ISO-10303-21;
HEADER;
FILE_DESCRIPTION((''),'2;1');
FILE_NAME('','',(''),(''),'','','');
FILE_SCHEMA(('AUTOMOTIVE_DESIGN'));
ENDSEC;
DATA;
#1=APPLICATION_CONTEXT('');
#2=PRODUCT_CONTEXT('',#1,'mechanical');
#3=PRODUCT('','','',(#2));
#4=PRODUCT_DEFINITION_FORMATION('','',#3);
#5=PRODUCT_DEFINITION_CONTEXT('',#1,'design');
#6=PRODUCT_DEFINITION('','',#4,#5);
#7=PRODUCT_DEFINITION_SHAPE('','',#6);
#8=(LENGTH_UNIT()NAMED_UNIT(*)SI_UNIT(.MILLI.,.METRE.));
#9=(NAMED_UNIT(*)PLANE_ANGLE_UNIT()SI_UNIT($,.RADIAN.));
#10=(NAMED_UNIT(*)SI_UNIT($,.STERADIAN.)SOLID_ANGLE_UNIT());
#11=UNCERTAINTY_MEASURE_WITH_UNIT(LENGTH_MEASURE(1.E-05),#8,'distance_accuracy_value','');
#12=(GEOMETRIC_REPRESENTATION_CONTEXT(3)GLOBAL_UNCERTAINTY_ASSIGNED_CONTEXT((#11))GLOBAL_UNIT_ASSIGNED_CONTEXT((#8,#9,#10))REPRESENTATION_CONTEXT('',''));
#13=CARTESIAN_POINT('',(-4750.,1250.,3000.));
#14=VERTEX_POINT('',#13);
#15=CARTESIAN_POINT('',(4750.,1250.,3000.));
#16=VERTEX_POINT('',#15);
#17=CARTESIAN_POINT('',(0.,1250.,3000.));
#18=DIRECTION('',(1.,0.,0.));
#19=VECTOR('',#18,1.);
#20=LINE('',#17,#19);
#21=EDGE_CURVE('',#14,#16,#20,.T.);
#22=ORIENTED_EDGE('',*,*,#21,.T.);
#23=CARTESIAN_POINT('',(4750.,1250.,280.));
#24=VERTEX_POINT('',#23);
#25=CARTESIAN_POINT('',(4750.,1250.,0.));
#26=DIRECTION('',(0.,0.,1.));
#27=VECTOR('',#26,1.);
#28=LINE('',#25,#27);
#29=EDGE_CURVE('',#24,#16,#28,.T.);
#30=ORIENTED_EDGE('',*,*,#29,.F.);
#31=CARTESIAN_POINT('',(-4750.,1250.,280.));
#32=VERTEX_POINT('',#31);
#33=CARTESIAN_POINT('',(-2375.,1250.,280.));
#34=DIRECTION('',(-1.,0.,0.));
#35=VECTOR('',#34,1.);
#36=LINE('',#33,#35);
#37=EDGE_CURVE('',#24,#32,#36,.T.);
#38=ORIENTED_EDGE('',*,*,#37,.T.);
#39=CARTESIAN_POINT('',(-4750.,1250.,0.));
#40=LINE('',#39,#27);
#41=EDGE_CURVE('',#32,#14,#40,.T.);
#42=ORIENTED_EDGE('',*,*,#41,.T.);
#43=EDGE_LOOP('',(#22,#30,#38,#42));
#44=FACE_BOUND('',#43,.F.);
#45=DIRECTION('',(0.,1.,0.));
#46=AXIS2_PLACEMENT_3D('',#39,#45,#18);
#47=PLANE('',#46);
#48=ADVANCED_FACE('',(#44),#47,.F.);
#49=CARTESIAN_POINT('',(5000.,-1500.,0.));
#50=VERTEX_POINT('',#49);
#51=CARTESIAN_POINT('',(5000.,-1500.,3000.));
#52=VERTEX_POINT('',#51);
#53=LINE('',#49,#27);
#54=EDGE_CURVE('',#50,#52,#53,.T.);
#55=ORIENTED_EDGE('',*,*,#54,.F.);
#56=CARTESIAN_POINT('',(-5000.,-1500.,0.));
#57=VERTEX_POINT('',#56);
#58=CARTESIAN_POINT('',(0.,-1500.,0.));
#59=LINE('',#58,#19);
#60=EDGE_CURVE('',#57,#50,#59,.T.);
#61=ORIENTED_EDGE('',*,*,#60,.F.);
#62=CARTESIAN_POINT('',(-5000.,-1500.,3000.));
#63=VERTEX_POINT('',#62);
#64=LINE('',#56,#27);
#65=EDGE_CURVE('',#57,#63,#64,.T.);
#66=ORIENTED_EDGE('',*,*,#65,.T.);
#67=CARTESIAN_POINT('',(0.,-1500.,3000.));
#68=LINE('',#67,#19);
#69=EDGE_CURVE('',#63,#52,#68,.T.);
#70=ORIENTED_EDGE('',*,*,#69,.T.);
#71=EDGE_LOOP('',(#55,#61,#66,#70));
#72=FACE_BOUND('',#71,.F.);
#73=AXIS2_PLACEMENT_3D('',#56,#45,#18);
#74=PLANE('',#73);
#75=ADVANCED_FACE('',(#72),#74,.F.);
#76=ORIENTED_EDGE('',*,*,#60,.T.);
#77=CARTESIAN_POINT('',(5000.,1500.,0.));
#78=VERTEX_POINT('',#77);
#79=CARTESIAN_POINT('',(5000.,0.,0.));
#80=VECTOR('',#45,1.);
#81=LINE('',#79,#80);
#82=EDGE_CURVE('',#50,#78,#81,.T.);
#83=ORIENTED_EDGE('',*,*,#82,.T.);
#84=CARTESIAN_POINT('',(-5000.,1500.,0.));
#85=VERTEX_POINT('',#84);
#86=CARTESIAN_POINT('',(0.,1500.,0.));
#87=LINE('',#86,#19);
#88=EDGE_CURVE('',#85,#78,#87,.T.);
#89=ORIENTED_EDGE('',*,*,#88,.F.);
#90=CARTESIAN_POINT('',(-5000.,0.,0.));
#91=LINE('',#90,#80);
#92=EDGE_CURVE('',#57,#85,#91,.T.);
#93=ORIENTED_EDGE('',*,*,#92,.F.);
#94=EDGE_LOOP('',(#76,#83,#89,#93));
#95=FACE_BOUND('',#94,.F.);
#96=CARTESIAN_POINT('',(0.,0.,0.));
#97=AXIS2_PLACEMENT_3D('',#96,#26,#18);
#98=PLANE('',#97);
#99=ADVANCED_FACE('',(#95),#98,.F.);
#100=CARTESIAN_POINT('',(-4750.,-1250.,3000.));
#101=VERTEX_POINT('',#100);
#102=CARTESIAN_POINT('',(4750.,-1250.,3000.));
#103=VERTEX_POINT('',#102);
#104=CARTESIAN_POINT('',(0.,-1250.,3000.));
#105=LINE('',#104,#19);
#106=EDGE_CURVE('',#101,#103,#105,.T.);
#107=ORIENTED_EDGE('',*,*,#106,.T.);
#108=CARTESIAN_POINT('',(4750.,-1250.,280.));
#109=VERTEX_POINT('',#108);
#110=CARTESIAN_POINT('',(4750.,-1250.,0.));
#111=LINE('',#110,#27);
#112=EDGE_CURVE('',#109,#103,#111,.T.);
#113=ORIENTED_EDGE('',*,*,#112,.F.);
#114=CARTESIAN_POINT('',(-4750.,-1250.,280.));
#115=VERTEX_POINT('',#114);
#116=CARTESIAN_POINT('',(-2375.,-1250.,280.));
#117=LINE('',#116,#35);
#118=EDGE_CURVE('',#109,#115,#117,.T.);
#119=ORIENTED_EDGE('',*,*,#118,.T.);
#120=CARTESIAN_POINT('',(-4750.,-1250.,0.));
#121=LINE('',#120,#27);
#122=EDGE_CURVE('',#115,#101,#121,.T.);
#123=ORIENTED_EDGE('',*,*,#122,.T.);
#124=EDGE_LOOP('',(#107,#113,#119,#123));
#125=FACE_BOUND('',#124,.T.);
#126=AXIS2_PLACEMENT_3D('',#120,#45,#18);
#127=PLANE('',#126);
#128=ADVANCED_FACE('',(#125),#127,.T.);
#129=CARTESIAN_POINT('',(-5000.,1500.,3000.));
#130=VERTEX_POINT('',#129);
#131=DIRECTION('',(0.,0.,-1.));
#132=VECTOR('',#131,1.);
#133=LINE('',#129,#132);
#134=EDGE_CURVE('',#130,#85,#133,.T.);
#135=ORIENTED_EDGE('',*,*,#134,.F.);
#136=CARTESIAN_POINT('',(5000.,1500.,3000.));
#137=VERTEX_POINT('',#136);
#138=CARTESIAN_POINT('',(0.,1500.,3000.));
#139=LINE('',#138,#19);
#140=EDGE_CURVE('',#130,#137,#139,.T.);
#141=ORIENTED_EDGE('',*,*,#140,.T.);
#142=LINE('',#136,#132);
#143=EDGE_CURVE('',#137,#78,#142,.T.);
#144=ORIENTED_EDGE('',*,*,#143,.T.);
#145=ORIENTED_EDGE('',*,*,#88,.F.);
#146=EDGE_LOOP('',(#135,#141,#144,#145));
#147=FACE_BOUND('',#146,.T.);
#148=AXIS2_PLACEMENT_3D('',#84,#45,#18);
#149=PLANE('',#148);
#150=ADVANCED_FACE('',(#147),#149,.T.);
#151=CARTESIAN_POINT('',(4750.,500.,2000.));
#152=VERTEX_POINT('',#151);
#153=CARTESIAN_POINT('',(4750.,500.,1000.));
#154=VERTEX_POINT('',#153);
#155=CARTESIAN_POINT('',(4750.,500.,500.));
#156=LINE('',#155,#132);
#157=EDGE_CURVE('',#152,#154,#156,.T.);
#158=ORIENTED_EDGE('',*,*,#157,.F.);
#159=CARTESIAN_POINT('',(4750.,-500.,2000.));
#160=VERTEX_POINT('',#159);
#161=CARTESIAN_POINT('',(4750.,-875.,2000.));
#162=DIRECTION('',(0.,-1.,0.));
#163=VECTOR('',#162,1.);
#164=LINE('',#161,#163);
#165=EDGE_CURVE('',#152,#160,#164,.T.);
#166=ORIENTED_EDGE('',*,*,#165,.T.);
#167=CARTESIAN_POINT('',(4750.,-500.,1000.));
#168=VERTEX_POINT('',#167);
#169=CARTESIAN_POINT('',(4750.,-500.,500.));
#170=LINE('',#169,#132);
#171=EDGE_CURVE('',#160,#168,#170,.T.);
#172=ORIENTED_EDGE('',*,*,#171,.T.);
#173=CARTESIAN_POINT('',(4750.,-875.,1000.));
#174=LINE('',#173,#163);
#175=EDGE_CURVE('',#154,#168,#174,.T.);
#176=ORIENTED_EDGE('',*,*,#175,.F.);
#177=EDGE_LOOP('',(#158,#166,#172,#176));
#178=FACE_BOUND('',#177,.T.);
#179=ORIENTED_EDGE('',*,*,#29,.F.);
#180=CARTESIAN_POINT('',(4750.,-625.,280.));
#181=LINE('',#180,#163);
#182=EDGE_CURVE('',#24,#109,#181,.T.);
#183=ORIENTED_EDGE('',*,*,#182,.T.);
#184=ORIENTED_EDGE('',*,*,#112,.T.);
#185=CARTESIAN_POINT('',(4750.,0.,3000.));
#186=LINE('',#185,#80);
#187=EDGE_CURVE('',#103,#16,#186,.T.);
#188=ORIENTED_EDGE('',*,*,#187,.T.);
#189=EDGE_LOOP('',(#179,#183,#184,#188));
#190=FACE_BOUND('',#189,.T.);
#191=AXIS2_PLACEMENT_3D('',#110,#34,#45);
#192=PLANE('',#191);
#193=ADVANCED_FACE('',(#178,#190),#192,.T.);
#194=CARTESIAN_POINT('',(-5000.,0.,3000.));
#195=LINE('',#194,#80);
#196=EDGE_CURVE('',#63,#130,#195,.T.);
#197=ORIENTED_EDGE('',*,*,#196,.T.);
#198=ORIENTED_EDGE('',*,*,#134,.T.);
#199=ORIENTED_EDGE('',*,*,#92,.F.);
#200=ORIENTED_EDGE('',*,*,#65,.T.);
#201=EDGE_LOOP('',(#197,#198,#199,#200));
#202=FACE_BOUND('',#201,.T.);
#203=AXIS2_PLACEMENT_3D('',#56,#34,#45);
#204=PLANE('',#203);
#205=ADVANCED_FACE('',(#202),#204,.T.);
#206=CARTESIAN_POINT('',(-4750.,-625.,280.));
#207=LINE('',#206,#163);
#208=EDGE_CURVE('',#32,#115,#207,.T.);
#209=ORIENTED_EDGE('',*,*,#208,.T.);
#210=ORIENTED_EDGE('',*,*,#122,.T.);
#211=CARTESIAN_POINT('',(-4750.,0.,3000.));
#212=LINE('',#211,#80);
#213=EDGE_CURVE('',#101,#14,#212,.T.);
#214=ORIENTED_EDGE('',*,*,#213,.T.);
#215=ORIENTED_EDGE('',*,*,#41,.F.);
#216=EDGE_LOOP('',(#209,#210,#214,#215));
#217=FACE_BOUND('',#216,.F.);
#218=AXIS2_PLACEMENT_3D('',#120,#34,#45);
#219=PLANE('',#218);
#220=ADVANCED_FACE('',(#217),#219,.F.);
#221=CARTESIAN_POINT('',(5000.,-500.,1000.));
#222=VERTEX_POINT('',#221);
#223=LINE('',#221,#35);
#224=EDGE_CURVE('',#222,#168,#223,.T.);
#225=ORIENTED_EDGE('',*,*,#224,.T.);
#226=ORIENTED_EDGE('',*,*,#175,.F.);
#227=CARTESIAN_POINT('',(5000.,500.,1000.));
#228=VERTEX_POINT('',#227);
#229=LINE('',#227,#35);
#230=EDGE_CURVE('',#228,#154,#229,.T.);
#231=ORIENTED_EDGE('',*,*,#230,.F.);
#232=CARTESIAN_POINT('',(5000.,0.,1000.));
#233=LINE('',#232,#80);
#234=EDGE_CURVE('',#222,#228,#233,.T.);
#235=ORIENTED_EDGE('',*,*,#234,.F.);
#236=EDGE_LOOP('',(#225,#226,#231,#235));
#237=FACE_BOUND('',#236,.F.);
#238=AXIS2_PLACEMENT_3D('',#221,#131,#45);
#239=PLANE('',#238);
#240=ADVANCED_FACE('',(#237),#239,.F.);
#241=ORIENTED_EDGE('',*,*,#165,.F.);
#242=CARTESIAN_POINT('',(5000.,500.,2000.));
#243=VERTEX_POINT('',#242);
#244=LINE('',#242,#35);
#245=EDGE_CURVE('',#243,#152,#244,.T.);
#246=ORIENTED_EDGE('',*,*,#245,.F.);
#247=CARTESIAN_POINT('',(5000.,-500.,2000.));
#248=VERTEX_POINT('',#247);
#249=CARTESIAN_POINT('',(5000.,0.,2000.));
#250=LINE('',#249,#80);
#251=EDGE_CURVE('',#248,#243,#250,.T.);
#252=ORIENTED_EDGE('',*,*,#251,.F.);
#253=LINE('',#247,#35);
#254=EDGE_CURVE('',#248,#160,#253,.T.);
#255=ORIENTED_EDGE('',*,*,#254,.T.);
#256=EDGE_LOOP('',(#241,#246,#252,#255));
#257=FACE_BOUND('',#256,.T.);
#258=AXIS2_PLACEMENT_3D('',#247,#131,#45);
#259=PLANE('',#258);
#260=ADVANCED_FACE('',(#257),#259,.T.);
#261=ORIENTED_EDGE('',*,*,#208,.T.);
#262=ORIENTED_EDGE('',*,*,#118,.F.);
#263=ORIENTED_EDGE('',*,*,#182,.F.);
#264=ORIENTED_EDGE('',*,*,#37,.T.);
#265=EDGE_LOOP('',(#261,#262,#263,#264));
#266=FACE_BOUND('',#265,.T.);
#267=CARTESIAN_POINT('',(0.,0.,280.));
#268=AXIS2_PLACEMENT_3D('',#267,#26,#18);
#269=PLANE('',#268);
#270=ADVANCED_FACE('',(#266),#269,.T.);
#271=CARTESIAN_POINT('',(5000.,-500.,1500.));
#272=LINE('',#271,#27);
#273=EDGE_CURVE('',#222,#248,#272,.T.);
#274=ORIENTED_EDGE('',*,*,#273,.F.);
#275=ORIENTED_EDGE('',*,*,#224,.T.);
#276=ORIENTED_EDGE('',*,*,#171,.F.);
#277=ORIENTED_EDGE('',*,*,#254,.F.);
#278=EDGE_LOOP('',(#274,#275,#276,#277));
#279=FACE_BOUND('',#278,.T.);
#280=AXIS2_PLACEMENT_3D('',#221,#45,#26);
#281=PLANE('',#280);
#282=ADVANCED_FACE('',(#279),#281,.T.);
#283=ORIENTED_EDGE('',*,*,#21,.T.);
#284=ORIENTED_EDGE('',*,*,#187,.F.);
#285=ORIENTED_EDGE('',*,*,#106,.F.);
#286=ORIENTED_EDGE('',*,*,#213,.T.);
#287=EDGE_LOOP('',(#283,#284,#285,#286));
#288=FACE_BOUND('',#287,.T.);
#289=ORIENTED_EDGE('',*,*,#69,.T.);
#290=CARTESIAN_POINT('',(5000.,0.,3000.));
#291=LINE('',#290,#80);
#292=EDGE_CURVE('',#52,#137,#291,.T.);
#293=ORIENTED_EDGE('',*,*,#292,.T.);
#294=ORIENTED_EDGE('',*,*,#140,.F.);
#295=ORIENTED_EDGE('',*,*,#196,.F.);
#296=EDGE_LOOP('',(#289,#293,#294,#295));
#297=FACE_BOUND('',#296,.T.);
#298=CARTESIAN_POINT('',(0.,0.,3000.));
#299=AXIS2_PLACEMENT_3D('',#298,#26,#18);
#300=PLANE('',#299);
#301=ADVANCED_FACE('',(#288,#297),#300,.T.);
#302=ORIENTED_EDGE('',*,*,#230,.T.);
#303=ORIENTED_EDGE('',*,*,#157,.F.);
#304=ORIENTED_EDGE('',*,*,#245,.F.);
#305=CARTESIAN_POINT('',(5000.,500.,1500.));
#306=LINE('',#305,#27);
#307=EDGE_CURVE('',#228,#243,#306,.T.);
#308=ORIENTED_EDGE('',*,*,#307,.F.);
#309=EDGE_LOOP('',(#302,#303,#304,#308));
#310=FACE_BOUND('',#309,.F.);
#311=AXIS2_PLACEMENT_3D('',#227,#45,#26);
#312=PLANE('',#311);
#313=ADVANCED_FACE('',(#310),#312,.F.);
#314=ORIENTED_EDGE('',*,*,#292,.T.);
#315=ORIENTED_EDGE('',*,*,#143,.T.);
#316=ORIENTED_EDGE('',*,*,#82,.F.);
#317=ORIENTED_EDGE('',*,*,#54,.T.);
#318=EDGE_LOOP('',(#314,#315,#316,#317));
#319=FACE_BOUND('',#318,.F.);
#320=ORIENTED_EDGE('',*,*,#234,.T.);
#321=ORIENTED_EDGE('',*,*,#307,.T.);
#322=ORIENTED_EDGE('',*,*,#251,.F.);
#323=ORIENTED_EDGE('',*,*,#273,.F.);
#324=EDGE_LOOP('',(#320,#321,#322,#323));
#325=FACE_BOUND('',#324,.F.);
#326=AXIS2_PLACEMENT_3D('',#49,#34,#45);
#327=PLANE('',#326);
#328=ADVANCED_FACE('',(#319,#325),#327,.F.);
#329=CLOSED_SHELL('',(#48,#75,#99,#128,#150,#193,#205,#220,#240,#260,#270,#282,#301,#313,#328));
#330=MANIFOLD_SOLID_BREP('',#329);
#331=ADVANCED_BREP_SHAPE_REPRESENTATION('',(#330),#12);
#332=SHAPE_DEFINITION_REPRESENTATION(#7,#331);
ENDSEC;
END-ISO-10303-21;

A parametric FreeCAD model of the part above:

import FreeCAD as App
import Part
import Sketcher

V = App.Vector


def add_polygon(sketch, points):
    """Adds a closed chain of lines whose ends are joined by coincident constraints."""
    first, n = sketch.GeometryCount, len(points)
    for a, b in zip(points, points[1:] + points[:1]):
        sketch.addGeometry(Part.LineSegment(App.Vector(*a, 0), App.Vector(*b, 0)), False)
    for i in range(n):
        sketch.addConstraint(Sketcher.Constraint("Coincident", first + i, 2, first + (i + 1) % n, 1))

doc = App.newDocument("Part")
body = doc.addObject("PartDesign::Body", "Body")

# Sketch on XY plane
sketch1 = doc.addObject("Sketcher::SketchObject", "Sketch")
body.addObject(sketch1)
sketch1.AttachmentSupport = (doc.XY_Plane, [""])
sketch1.MapMode = "FlatFace"
add_polygon(sketch1, [(-5000, 1500), (-5000, -1500), (5000, -1500), (5000, 1500)])  # lines 0-3
sketch1.addConstraint([
    Sketcher.Constraint("Vertical", 0),
    Sketcher.Constraint("Horizontal", 1),
    Sketcher.Constraint("Vertical", 2),
    Sketcher.Constraint("Horizontal", 3),
    Sketcher.Constraint("Symmetric", 0, 2, 2, 2, -1, 1),
    Sketcher.Constraint("DistanceX", 1, 1, 1, 2, 10000.0),
    Sketcher.Constraint("DistanceY", 0, 2, 0, 1, 3000.0),
])
pad1 = doc.addObject("PartDesign::Pad", "Pad")
body.addObject(pad1)
pad1.Profile = sketch1
pad1.Length = 280

# Sketch on XY plane
sketch2 = doc.addObject("Sketcher::SketchObject", "Sketch001")
body.addObject(sketch2)
sketch2.AttachmentSupport = (doc.XY_Plane, [""])
sketch2.MapMode = "FlatFace"
add_polygon(sketch2, [(-5000, 1500), (-5000, -1500), (5000, -1500), (5000, 1500)])  # lines 0-3
add_polygon(sketch2, [(4750, -1250), (-4750, -1250), (-4750, 1250), (4750, 1250)])  # lines 4-7
sketch2.addConstraint([
    Sketcher.Constraint("Vertical", 0),
    Sketcher.Constraint("Horizontal", 1),
    Sketcher.Constraint("Vertical", 2),
    Sketcher.Constraint("Horizontal", 3),
    Sketcher.Constraint("Horizontal", 4),
    Sketcher.Constraint("Vertical", 5),
    Sketcher.Constraint("Horizontal", 6),
    Sketcher.Constraint("Vertical", 7),
    Sketcher.Constraint("Symmetric", 0, 2, 2, 2, -1, 1),
    Sketcher.Constraint("Symmetric", 4, 2, 6, 2, -1, 1),
    Sketcher.Constraint("DistanceX", 1, 1, 1, 2, 10000.0),
    Sketcher.Constraint("DistanceX", 4, 2, 4, 1, 9500.0),
    Sketcher.Constraint("DistanceY", 0, 2, 0, 1, 3000.0),
    Sketcher.Constraint("DistanceY", 5, 1, 5, 2, 2500.0),
])
pad2 = doc.addObject("PartDesign::Pad", "Pad001")
body.addObject(pad2)
pad2.Profile = sketch2
pad2.Length = 3000

# Sketch on YZ plane
sketch3 = doc.addObject("Sketcher::SketchObject", "Sketch002")
body.addObject(sketch3)
sketch3.AttachmentSupport = (doc.YZ_Plane, [""])
sketch3.MapMode = "FlatFace"
sketch3.AttachmentOffset = App.Placement(V(0, 0, 5000), App.Rotation())
add_polygon(sketch3, [(-500, 2000), (-500, 1000), (500, 1000), (500, 2000)])  # lines 0-3
sketch3.addConstraint([
    Sketcher.Constraint("Vertical", 0),
    Sketcher.Constraint("Horizontal", 1),
    Sketcher.Constraint("Vertical", 2),
    Sketcher.Constraint("Horizontal", 3),
    Sketcher.Constraint("Equal", 3, 0),
    Sketcher.Constraint("DistanceX", 1, 1, 1, 2, 1000.0),
    Sketcher.Constraint("DistanceX", 0, 2, -1, 1, 500.0),
    Sketcher.Constraint("DistanceY", -1, 1, 0, 2, 1000.0),
])
pocket1 = doc.addObject("PartDesign::Pocket", "Pocket")
body.addObject(pocket1)
pocket1.Profile = sketch3
pocket1.Length = 1000

doc.recompute()
